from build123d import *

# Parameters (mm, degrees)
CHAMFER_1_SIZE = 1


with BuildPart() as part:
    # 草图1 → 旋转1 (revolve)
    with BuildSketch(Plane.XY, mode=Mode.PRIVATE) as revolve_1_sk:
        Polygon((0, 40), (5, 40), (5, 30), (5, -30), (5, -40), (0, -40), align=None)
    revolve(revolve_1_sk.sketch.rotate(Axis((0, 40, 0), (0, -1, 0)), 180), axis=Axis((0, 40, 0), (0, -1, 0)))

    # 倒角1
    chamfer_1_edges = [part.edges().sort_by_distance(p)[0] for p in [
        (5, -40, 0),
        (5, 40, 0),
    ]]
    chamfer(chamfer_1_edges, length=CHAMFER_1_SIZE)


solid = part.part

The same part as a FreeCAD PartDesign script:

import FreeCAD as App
import Part
import Sketcher
Q = App.Units.Quantity


def edges_at(feature, points):
    """Names of the edges that pass closest to the given points."""
    edges = feature.Shape.Edges
    near = lambda p: min(range(len(edges)), key=lambda i: edges[i].distToShape(Part.Vertex(*p))[0])
    return sorted({f"Edge{near(p) + 1}" for p in points})


def add_polygon(sketch, points):
    """Adds a closed chain of lines whose ends are joined by coincident constraints."""
    first, n = sketch.GeometryCount, len(points)
    for a, b in zip(points, points[1:] + points[:1]):
        sketch.addGeometry(Part.LineSegment(App.Vector(*a, 0), App.Vector(*b, 0)), False)
    for i in range(n):
        sketch.addConstraint(Sketcher.Constraint("Coincident", first + i, 2, first + (i + 1) % n, 1))

doc = App.newDocument("Part")
body = doc.addObject("PartDesign::Body", "Body")

# Sketch on XY plane
sketch1 = body.newObject("Sketcher::SketchObject", "Sketch")
sketch1.AttachmentSupport = (doc.getObject("XY_Plane"), [""])
sketch1.MapMode = "FlatFace"
add_polygon(sketch1, [(5, 40), (0, 40), (0, -40), (5, -40)])  # lines 0-3
sketch1.addConstraint(Sketcher.Constraint("Horizontal", 0))
sketch1.addConstraint(Sketcher.Constraint("Vertical", 1))
sketch1.addConstraint(Sketcher.Constraint("Horizontal", 2))
sketch1.addConstraint(Sketcher.Constraint("Vertical", 3))
sketch1.addConstraint(Sketcher.Constraint("Symmetric", 0, 2, 1, 2, -1, 1))
sketch1.addConstraint(Sketcher.Constraint("DistanceX", 0, 2, 0, 1, Q("5 mm")))
sketch1.addConstraint(Sketcher.Constraint("DistanceY", 1, 2, 1, 1, Q("80 mm")))
revolution = body.newObject("PartDesign::Revolution", "Revolution")
revolution.Profile = sketch1
revolution.ReferenceAxis = (sketch1, ["V_Axis"])
revolution.Angle = 360
doc.recompute()

chamfer = body.newObject("PartDesign::Chamfer", "Chamfer")
chamfer.Base = (revolution, edges_at(revolution, [(5, -40, 0), (5, 40, 0)]))
chamfer.Size = 1

doc.recompute()
